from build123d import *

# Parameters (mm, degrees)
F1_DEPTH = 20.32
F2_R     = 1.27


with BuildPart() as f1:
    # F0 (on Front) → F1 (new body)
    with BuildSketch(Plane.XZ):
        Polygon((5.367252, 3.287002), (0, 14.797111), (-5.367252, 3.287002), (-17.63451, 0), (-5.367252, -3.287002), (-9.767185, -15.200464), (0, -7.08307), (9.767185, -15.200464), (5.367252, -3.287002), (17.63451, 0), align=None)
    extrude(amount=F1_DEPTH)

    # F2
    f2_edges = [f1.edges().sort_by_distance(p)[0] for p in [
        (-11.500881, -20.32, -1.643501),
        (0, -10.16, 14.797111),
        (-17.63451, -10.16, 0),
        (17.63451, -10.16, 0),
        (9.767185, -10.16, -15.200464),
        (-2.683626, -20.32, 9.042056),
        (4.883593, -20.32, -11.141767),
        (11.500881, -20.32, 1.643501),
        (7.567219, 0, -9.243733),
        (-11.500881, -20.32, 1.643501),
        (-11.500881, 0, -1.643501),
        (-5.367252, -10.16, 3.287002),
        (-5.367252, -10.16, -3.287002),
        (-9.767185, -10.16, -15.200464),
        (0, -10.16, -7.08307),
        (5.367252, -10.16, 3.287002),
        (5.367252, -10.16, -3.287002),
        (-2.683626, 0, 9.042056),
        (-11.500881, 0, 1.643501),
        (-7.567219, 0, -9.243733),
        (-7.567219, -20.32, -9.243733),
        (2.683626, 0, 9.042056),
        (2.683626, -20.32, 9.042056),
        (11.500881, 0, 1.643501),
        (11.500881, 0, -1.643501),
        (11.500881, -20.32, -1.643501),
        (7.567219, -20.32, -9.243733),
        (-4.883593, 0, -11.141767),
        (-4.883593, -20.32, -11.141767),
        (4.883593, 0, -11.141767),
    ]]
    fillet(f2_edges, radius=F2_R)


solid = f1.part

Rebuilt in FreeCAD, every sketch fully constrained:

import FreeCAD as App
import Part
import Sketcher
Q = App.Units.Quantity

doc = App.newDocument("Part")
body = doc.addObject("PartDesign::Body", "Body")

sketch1 = body.newObject("Sketcher::SketchObject", "Sketch")
sketch1.AttachmentSupport = (doc.getObject("XZ_Plane"), [""])
sketch1.MapMode = "FlatFace"
sketch1.addGeometry([
    Part.LineSegment(App.Vector(5.367252, 3.287002, 0), App.Vector(0, 14.797111, 0)),
    Part.LineSegment(App.Vector(0, 14.797111, 0), App.Vector(-5.367252, 3.287002, 0)),
    Part.LineSegment(App.Vector(-5.367252, 3.287002, 0), App.Vector(-17.63451, 0, 0)),
    Part.LineSegment(App.Vector(-17.63451, 0, 0), App.Vector(-5.367252, -3.287002, 0)),
    Part.LineSegment(App.Vector(-5.367252, -3.287002, 0), App.Vector(-9.767185, -15.200464, 0)),
    Part.LineSegment(App.Vector(-9.767185, -15.200464, 0), App.Vector(0, -7.08307, 0)),
    Part.LineSegment(App.Vector(0, -7.08307, 0), App.Vector(9.767185, -15.200464, 0)),
    Part.LineSegment(App.Vector(9.767185, -15.200464, 0), App.Vector(5.367252, -3.287002, 0)),
    Part.LineSegment(App.Vector(5.367252, -3.287002, 0), App.Vector(17.63451, 0, 0)),
    Part.LineSegment(App.Vector(17.63451, 0, 0), App.Vector(5.367252, 3.287002, 0)),
], False)
sketch1.addConstraint([
    Sketcher.Constraint("Coincident", 0, 2, 1, 1),
    Sketcher.Constraint("Coincident", 1, 2, 2, 1),
    Sketcher.Constraint("Coincident", 2, 2, 3, 1),
    Sketcher.Constraint("Coincident", 3, 2, 4, 1),
    Sketcher.Constraint("Coincident", 4, 2, 5, 1),
    Sketcher.Constraint("Coincident", 5, 2, 6, 1),
    Sketcher.Constraint("Coincident", 6, 2, 7, 1),
    Sketcher.Constraint("Coincident", 7, 2, 8, 1),
    Sketcher.Constraint("Coincident", 8, 2, 9, 1),
    Sketcher.Constraint("Coincident", 9, 2, 0, 1),
    Sketcher.Constraint("Symmetric", 1, 2, 7, 2, -1, 1),
    Sketcher.Constraint("Symmetric", 2, 2, 8, 2, -1, 1),
    Sketcher.Constraint("Symmetric", 3, 2, 9, 2, -1, 1),
    Sketcher.Constraint("Symmetric", 4, 2, 6, 2, -2),
    Sketcher.Constraint("Symmetric", 3, 2, 7, 2, -2),
    Sketcher.Constraint("PointOnObject", 0, 2, -2),
    Sketcher.Constraint("PointOnObject", 2, 2, -1),
    Sketcher.Constraint("PointOnObject", 5, 2, -2),
    Sketcher.Constraint("Equal", 1, 2),
    Sketcher.Constraint("Equal", 3, 4),
    Sketcher.Constraint("Equal", 4, 5),
    Sketcher.Constraint("Angle", 0, Q("115 deg")),
    Sketcher.Constraint("Angle", 2, Q("-164.999999 deg")),
    Sketcher.Constraint("Distance", 0, Q("0.5 in")),
    Sketcher.Constraint("DistanceY", 5, 2, -1, 1, 7.08307),
])
pad1 = body.newObject("PartDesign::Pad", "Pad")
pad1.Profile = sketch1
pad1.Length = Q("0.8 in")
doc.recompute()

fillet = body.newObject("PartDesign::Fillet", "Fillet")
fillet.Base = (pad1, ["Edge1"])
fillet.UseAllEdges = True
fillet.Radius = Q("0.05 in")

doc.recompute()
